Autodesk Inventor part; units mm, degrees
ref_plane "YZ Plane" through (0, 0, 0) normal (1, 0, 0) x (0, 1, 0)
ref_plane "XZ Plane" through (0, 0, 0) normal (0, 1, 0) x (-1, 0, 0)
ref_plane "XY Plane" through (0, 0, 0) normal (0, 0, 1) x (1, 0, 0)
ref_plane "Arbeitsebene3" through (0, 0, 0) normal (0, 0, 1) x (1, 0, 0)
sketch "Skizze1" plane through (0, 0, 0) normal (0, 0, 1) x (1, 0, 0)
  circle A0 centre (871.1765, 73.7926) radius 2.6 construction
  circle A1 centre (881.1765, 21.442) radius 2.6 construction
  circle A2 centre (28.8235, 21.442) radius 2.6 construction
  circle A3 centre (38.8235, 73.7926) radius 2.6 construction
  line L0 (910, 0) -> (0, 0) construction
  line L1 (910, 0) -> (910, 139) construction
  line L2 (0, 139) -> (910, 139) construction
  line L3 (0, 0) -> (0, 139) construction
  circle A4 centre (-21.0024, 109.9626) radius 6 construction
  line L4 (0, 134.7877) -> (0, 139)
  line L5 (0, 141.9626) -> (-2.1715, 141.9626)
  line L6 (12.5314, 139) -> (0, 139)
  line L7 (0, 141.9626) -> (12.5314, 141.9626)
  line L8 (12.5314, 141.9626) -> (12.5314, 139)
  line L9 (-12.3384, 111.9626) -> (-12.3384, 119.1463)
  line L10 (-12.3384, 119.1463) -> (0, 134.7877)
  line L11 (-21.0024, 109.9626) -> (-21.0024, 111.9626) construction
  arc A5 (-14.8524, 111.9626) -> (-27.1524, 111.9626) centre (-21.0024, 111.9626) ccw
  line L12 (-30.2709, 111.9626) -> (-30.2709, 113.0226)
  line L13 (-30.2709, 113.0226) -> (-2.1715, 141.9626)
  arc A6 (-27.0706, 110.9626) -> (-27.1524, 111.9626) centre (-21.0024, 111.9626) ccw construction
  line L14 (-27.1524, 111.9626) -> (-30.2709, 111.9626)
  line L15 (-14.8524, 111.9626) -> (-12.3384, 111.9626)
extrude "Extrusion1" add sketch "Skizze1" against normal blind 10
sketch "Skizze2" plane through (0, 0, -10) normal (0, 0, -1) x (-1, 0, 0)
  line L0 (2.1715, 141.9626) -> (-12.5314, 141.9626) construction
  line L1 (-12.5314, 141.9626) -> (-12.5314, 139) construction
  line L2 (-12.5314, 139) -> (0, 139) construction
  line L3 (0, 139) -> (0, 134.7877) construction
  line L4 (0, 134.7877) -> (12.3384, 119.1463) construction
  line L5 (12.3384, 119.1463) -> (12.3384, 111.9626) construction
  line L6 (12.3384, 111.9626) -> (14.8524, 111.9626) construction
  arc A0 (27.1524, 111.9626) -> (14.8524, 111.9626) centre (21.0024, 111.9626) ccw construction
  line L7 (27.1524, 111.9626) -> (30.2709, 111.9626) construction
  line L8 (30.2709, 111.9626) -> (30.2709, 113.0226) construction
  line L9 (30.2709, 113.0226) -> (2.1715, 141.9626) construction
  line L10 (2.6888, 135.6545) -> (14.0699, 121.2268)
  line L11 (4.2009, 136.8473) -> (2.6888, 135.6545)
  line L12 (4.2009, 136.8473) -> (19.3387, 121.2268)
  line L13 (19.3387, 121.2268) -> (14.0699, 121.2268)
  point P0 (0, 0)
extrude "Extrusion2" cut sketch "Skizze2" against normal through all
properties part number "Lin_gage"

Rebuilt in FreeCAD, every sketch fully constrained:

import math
import FreeCAD as App
import Part
import Sketcher
Q = App.Units.Quantity


def add_polygon(sketch, points):
    """Adds a closed chain of lines whose ends are joined by coincident constraints."""
    first, n = sketch.GeometryCount, len(points)
    for a, b in zip(points, points[1:] + points[:1]):
        sketch.addGeometry(Part.LineSegment(App.Vector(*a, 0), App.Vector(*b, 0)), False)
    for i in range(n):
        sketch.addConstraint(Sketcher.Constraint("Coincident", first + i, 2, first + (i + 1) % n, 1))

doc = App.newDocument("Part")
params = doc.addObject("Spreadsheet::Sheet", "Params")
for row, (alias, value) in enumerate([
    ("sketch1_radius", "6.15 mm"),
    ("sketch1_height", "1.06 mm"),
    ("pad1_length", "10 mm"),
], start=1):
    params.set(f"A{row}", alias)
    params.set(f"B{row}", "=" + value)
    params.setAlias(f"B{row}", alias)

body = doc.addObject("PartDesign::Body", "Body")

# Sketch on XY plane
sketch1 = body.newObject("Sketcher::SketchObject", "Sketch")
sketch1.AttachmentSupport = (doc.getObject("XY_Plane"), [""])
sketch1.MapMode = "FlatFace"
sketch1.addGeometry(Part.LineSegment(App.Vector(-12.3, 119.1, 0), App.Vector(0, 134.8, 0)), False)
sketch1.addGeometry(Part.LineSegment(App.Vector(0, 134.8, 0), App.Vector(0, 139, 0)), False)
sketch1.addGeometry(Part.LineSegment(App.Vector(0, 139, 0), App.Vector(12.5, 139, 0)), False)
sketch1.addGeometry(Part.LineSegment(App.Vector(12.5, 139, 0), App.Vector(12.5, 142, 0)), False)
sketch1.addGeometry(Part.LineSegment(App.Vector(12.5, 142, 0), App.Vector(-2.2, 142, 0)), False)
sketch1.addGeometry(Part.LineSegment(App.Vector(-2.2, 142, 0), App.Vector(-30.3, 113, 0)), False)
sketch1.addGeometry(Part.LineSegment(App.Vector(-30.3, 113, 0), App.Vector(-30.3, 112, 0)), False)
sketch1.addGeometry(Part.LineSegment(App.Vector(-30.3, 112, 0), App.Vector(-27.2, 112, 0)), False)
sketch1.addGeometry(Part.ArcOfCircle(Part.Circle(App.Vector(-21, 112, 0), App.Vector(0, 0, 1), 6.2), math.radians(0), math.radians(180)), False)
sketch1.addGeometry(Part.LineSegment(App.Vector(-14.9, 112, 0), App.Vector(-12.3, 112, 0)), False)
sketch1.addGeometry(Part.LineSegment(App.Vector(-12.3, 112, 0), App.Vector(-12.3, 119.1, 0)), False)
sketch1.addConstraint(Sketcher.Constraint("Coincident", 0, 2, 1, 1))
sketch1.addConstraint(Sketcher.Constraint("Coincident", 1, 2, 2, 1))
sketch1.addConstraint(Sketcher.Constraint("Coincident", 2, 2, 3, 1))
sketch1.addConstraint(Sketcher.Constraint("Coincident", 3, 2, 4, 1))
sketch1.addConstraint(Sketcher.Constraint("Coincident", 4, 2, 5, 1))
sketch1.addConstraint(Sketcher.Constraint("Coincident", 5, 2, 6, 1))
sketch1.addConstraint(Sketcher.Constraint("Coincident", 6, 2, 7, 1))
sketch1.addConstraint(Sketcher.Constraint("Coincident", 7, 2, 8, 2))
sketch1.addConstraint(Sketcher.Constraint("Coincident", 8, 1, 9, 1))
sketch1.addConstraint(Sketcher.Constraint("Coincident", 9, 2, 10, 1))
sketch1.addConstraint(Sketcher.Constraint("Coincident", 10, 2, 0, 1))
sketch1.addConstraint(Sketcher.Constraint("Vertical", 1))
sketch1.addConstraint(Sketcher.Constraint("Horizontal", 2))
sketch1.addConstraint(Sketcher.Constraint("Vertical", 3))
sketch1.addConstraint(Sketcher.Constraint("Horizontal", 4))
sketch1.addConstraint(Sketcher.Constraint("Vertical", 6))
sketch1.addConstraint(Sketcher.Constraint("Horizontal", 7))
sketch1.addConstraint(Sketcher.Constraint("Horizontal", 9))
sketch1.addConstraint(Sketcher.Constraint("Vertical", 10))
sketch1.addConstraint(Sketcher.Constraint("PointOnObject", 0, 2, -2))
sketch1.addConstraint(Sketcher.Constraint("Horizontal", 8, 3, 6, 2))
sketch1.addConstraint(Sketcher.Constraint("Horizontal", 7, 2, 8, 1))
sketch1.addConstraint(Sketcher.Constraint("Radius", 8, 6.15))
sketch1.addConstraint(Sketcher.Constraint("DistanceY", -1, 1, 1, 2, 139.0))
sketch1.addConstraint(Sketcher.Constraint("DistanceY", 8, 3, 3, 2, 30.0))
sketch1.addConstraint(Sketcher.Constraint("DistanceY", 6, 2, 6, 1, 1.06))
sketch1.addConstraint(Sketcher.Constraint("DistanceX", 4, 2, 4, 1, 14.703))
sketch1.addConstraint(Sketcher.Constraint("DistanceX", 9, 1, 9, 2, 2.514))
sketch1.addConstraint(Sketcher.Constraint("Distance", 0, 19.922))
sketch1.addConstraint(Sketcher.Constraint("DistanceX", 2, 1, 2, 2, 12.5314))
sketch1.addConstraint(Sketcher.Constraint("DistanceX", 7, 1, 7, 2, 3.1185))
sketch1.addConstraint(Sketcher.Constraint("DistanceY", 1, 1, 1, 2, 4.2123))
sketch1.addConstraint(Sketcher.Constraint("DistanceY", 3, 1, 3, 2, 2.9626))
sketch1.addConstraint(Sketcher.Constraint("DistanceY", 10, 1, 10, 2, 7.1837))
sketch1.setExpression("Constraints[22]", "Params.sketch1_radius")
sketch1.setExpression("Constraints[25]", "Params.sketch1_height")
pad1 = body.newObject("PartDesign::Pad", "Pad")
pad1.Profile = sketch1
pad1.setExpression("Length", "Params.pad1_length")
pad1.Reversed = True

# Sketch on XY plane
sketch2 = body.newObject("Sketcher::SketchObject", "Sketch001")
sketch2.AttachmentSupport = (doc.getObject("XY_Plane"), [""])
sketch2.MapMode = "FlatFace"
sketch2.AttachmentOffset = App.Placement(App.Vector(0, 0, -10), App.Rotation())
add_polygon(sketch2, [(-4.2, 136.8), (-2.7, 135.7), (-14.1, 121.2), (-19.3, 121.2)])  # lines 0-3
sketch2.addConstraint(Sketcher.Constraint("Horizontal", 2))
sketch2.addConstraint(Sketcher.Constraint("Perpendicular", 0, 1))
sketch2.addConstraint(Sketcher.Constraint("Angle", 3, Q("45.899 deg")))
sketch2.addConstraint(Sketcher.Constraint("DistanceX", 1, 2, -1, 1, 14.07))
sketch2.addConstraint(Sketcher.Constraint("DistanceX", 2, 2, 0, 2, 16.65))
sketch2.addConstraint(Sketcher.Constraint("Distance", 0, 1.926))
sketch2.addConstraint(Sketcher.Constraint("Distance", 3, 21.752))
sketch2.addConstraint(Sketcher.Constraint("DistanceY", -1, 1, 0, 2, 135.6545))
pocket1 = body.newObject("PartDesign::Pocket", "Pocket")
pocket1.Profile = sketch2
pocket1.Type = "ThroughAll"
pocket1.Reversed = True

doc.recompute()
